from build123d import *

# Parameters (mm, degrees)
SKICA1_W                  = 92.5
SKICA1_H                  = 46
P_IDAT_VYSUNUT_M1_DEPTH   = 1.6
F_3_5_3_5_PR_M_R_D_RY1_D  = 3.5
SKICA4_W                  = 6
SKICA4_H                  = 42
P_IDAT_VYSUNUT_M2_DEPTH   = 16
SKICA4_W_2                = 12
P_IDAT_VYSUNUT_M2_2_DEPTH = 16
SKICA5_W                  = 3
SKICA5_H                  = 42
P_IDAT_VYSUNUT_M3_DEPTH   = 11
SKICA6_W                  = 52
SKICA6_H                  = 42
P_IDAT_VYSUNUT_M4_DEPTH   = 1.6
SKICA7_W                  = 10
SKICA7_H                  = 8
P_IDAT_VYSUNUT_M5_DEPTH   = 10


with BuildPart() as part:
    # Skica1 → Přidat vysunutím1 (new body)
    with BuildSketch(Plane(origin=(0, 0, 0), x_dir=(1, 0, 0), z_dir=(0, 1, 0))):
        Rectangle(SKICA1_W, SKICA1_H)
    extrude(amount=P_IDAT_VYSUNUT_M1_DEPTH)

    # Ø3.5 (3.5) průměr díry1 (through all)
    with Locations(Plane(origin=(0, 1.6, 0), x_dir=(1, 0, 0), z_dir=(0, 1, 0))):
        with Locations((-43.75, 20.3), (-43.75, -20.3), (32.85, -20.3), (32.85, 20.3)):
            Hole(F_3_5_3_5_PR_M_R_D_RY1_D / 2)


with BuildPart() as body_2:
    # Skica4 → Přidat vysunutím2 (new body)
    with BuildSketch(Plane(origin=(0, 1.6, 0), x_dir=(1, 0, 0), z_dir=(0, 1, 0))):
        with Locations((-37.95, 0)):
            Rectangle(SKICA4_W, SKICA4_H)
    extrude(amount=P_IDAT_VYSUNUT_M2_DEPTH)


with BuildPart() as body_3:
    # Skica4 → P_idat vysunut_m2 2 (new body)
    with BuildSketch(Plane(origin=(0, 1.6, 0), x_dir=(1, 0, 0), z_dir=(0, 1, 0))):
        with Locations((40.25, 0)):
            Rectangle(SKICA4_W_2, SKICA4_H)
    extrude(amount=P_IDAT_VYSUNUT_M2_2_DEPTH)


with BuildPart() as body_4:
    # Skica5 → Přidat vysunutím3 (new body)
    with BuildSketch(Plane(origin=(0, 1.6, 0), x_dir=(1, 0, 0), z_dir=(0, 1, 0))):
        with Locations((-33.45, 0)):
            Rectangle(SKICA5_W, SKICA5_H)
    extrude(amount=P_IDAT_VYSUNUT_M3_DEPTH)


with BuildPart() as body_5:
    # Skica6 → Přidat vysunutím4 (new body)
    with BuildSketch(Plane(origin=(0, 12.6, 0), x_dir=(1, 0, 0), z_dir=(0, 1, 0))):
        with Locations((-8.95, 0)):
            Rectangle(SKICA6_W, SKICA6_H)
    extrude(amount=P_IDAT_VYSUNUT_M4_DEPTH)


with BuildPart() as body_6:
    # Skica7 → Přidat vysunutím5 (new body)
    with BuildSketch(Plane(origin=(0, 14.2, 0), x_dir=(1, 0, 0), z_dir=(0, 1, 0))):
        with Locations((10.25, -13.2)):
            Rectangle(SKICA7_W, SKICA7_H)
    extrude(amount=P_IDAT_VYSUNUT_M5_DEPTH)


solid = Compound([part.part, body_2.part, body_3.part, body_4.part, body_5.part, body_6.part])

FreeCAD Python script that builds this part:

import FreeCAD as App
import Part
import Sketcher

V = App.Vector
Q = App.Units.Quantity

doc = App.newDocument("Part")
body = doc.addObject("PartDesign::Body", "Body")

# Sketch on XZ plane
sketch1 = body.newObject("Sketcher::SketchObject", "Sketch")
sketch1.AttachmentSupport = (doc.getObject("XZ_Plane"), [""])
sketch1.MapMode = "FlatFace"
sketch1.addGeometry([
    Part.LineSegment(V(-46.25, -23, 0), V(-46.25, 23, 0)),
    Part.LineSegment(V(-46.25, 23, 0), V(46.25, 23, 0)),
    Part.LineSegment(V(46.25, 23, 0), V(46.25, -23, 0)),
    Part.LineSegment(V(46.25, -23, 0), V(-46.25, -23, 0)),
], False)
sketch1.addConstraint([
    Sketcher.Constraint("Coincident", 0, 2, 1, 1),
    Sketcher.Constraint("Coincident", 1, 2, 2, 1),
    Sketcher.Constraint("Coincident", 2, 2, 3, 1),
    Sketcher.Constraint("Coincident", 3, 2, 0, 1),
    Sketcher.Constraint("Vertical", 0),
    Sketcher.Constraint("Horizontal", 1),
    Sketcher.Constraint("Vertical", 2),
    Sketcher.Constraint("Horizontal", 3),
    Sketcher.Constraint("Symmetric", 0, 2, 2, 2, -1, 1),
    Sketcher.Constraint("DistanceY", 0, 1, 0, 2, Q("46 mm")),
    Sketcher.Constraint("DistanceX", 1, 1, 1, 2, Q("92.5 mm")),
])
pad1 = body.newObject("PartDesign::Pad", "Pad")
pad1.Profile = sketch1
pad1.Length = 1.6
pad1.Reversed = True

# Sketch on XZ plane
sketch2 = body.newObject("Sketcher::SketchObject", "Sketch001")
sketch2.AttachmentSupport = (doc.getObject("XZ_Plane"), [""])
sketch2.MapMode = "FlatFace"
sketch2.AttachmentOffset = App.Placement(V(0, 0, -1.6), App.Rotation())
sketch2.addGeometry([
    Part.Circle(V(-43.75, -20.3, 0), V(0, 0, 1), 1.75),
    Part.Circle(V(-43.75, 20.3, 0), V(0, 0, 1), 1.75),
    Part.Circle(V(32.85, 20.3, 0), V(0, 0, 1), 1.75),
    Part.Circle(V(32.85, -20.3, 0), V(0, 0, 1), 1.75),
], False)
sketch2.addConstraint([
    Sketcher.Constraint("Equal", 0, 1),
    Sketcher.Constraint("Equal", 1, 2),
    Sketcher.Constraint("Equal", 2, 3),
    Sketcher.Constraint("Symmetric", 0, 3, 1, 3, -1),
    Sketcher.Constraint("Symmetric", 2, 3, 3, 3, -1),
    Sketcher.Constraint("Horizontal", 1, 3, 2, 3),
    Sketcher.Constraint("Diameter", 0, Q("3.5 mm")),
    Sketcher.Constraint("DistanceY", 0, 3, -1, 1, Q("20.3 mm")),
    Sketcher.Constraint("DistanceX", 1, 3, 2, 3, Q("76.6 mm")),
    Sketcher.Constraint("DistanceX", 0, 3, -1, 1, Q("43.75 mm")),
])
doc.recompute()
hole = body.newObject("PartDesign::Hole", "Hole")
hole.Profile = sketch2
hole.ThreadType = "None"
hole.Diameter = 3.5
hole.DepthType = "ThroughAll"
hole.Reversed = True
body2 = doc.addObject("PartDesign::Body", "Body001")

# Sketch on XZ plane
sketch3 = body2.newObject("Sketcher::SketchObject", "Sketch002")
sketch3.AttachmentSupport = (doc.getObject("XZ_Plane001"), [""])
sketch3.MapMode = "FlatFace"
sketch3.AttachmentOffset = App.Placement(V(0, 0, -1.6), App.Rotation())
sketch3.addGeometry([
    Part.LineSegment(V(-40.95, -21, 0), V(-40.95, 21, 0)),
    Part.LineSegment(V(-40.95, 21, 0), V(-34.95, 21, 0)),
    Part.LineSegment(V(-34.95, 21, 0), V(-34.95, -21, 0)),
    Part.LineSegment(V(-34.95, -21, 0), V(-40.95, -21, 0)),
], False)
sketch3.addConstraint([
    Sketcher.Constraint("Coincident", 0, 2, 1, 1),
    Sketcher.Constraint("Coincident", 1, 2, 2, 1),
    Sketcher.Constraint("Coincident", 2, 2, 3, 1),
    Sketcher.Constraint("Coincident", 3, 2, 0, 1),
    Sketcher.Constraint("Vertical", 0),
    Sketcher.Constraint("Horizontal", 1),
    Sketcher.Constraint("Vertical", 2),
    Sketcher.Constraint("Horizontal", 3),
    Sketcher.Constraint("DistanceX", 1, 1, 1, 2, Q("6 mm")),
    Sketcher.Constraint("DistanceY", 0, 1, 0, 2, Q("42 mm")),
    Sketcher.Constraint("DistanceY", -1, 1, 0, 2, Q("21 mm")),
    Sketcher.Constraint("DistanceX", 0, 2, -1, 1, Q("40.95 mm")),
])
pad2 = body2.newObject("PartDesign::Pad", "Pad001")
pad2.Profile = sketch3
pad2.Length = 16
pad2.Reversed = True
body3 = doc.addObject("PartDesign::Body", "Body002")

# Sketch on XZ plane
sketch4 = body3.newObject("Sketcher::SketchObject", "Sketch003")
sketch4.AttachmentSupport = (doc.getObject("XZ_Plane002"), [""])
sketch4.MapMode = "FlatFace"
sketch4.AttachmentOffset = App.Placement(V(0, 0, -1.6), App.Rotation())
sketch4.addGeometry([
    Part.LineSegment(V(34.25, -21, 0), V(34.25, 21, 0)),
    Part.LineSegment(V(34.25, 21, 0), V(46.25, 21, 0)),
    Part.LineSegment(V(46.25, 21, 0), V(46.25, -21, 0)),
    Part.LineSegment(V(46.25, -21, 0), V(34.25, -21, 0)),
], False)
sketch4.addConstraint([
    Sketcher.Constraint("Coincident", 0, 2, 1, 1),
    Sketcher.Constraint("Coincident", 1, 2, 2, 1),
    Sketcher.Constraint("Coincident", 2, 2, 3, 1),
    Sketcher.Constraint("Coincident", 3, 2, 0, 1),
    Sketcher.Constraint("Vertical", 0),
    Sketcher.Constraint("Horizontal", 1),
    Sketcher.Constraint("Vertical", 2),
    Sketcher.Constraint("Horizontal", 3),
    Sketcher.Constraint("DistanceX", 1, 1, 1, 2, Q("12 mm")),
    Sketcher.Constraint("DistanceY", 0, 1, 0, 2, Q("42 mm")),
    Sketcher.Constraint("DistanceY", -1, 1, 0, 2, Q("21 mm")),
    Sketcher.Constraint("DistanceX", -1, 1, 0, 2, Q("34.25 mm")),
])
pad3 = body3.newObject("PartDesign::Pad", "Pad002")
pad3.Profile = sketch4
pad3.Length = 16
pad3.Reversed = True
body4 = doc.addObject("PartDesign::Body", "Body003")

# Sketch on XZ plane
sketch5 = body4.newObject("Sketcher::SketchObject", "Sketch004")
sketch5.AttachmentSupport = (doc.getObject("XZ_Plane003"), [""])
sketch5.MapMode = "FlatFace"
sketch5.AttachmentOffset = App.Placement(V(0, 0, -1.6), App.Rotation())
sketch5.addGeometry([
    Part.LineSegment(V(-34.95, -21, 0), V(-34.95, 21, 0)),
    Part.LineSegment(V(-34.95, 21, 0), V(-31.95, 21, 0)),
    Part.LineSegment(V(-31.95, 21, 0), V(-31.95, -21, 0)),
    Part.LineSegment(V(-31.95, -21, 0), V(-34.95, -21, 0)),
], False)
sketch5.addConstraint([
    Sketcher.Constraint("Coincident", 0, 2, 1, 1),
    Sketcher.Constraint("Coincident", 1, 2, 2, 1),
    Sketcher.Constraint("Coincident", 2, 2, 3, 1),
    Sketcher.Constraint("Coincident", 3, 2, 0, 1),
    Sketcher.Constraint("Vertical", 0),
    Sketcher.Constraint("Horizontal", 1),
    Sketcher.Constraint("Vertical", 2),
    Sketcher.Constraint("Horizontal", 3),
    Sketcher.Constraint("DistanceX", 1, 1, 1, 2, Q("3 mm")),
    Sketcher.Constraint("DistanceY", 0, 1, 0, 2, Q("42 mm")),
    Sketcher.Constraint("DistanceY", -1, 1, 0, 2, Q("21 mm")),
    Sketcher.Constraint("DistanceX", 0, 2, -1, 1, Q("34.95 mm")),
])
pad4 = body4.newObject("PartDesign::Pad", "Pad003")
pad4.Profile = sketch5
pad4.Length = 11
pad4.Reversed = True
body5 = doc.addObject("PartDesign::Body", "Body004")

# Sketch on XZ plane
sketch6 = body5.newObject("Sketcher::SketchObject", "Sketch005")
sketch6.AttachmentSupport = (doc.getObject("XZ_Plane004"), [""])
sketch6.MapMode = "FlatFace"
sketch6.AttachmentOffset = App.Placement(V(0, 0, -12.6), App.Rotation())
sketch6.addGeometry([
    Part.LineSegment(V(-34.95, -21, 0), V(-34.95, 21, 0)),
    Part.LineSegment(V(-34.95, 21, 0), V(17.05, 21, 0)),
    Part.LineSegment(V(17.05, 21, 0), V(17.05, -21, 0)),
    Part.LineSegment(V(17.05, -21, 0), V(-34.95, -21, 0)),
], False)
sketch6.addConstraint([
    Sketcher.Constraint("Coincident", 0, 2, 1, 1),
    Sketcher.Constraint("Coincident", 1, 2, 2, 1),
    Sketcher.Constraint("Coincident", 2, 2, 3, 1),
    Sketcher.Constraint("Coincident", 3, 2, 0, 1),
    Sketcher.Constraint("Vertical", 0),
    Sketcher.Constraint("Horizontal", 1),
    Sketcher.Constraint("Vertical", 2),
    Sketcher.Constraint("Horizontal", 3),
    Sketcher.Constraint("DistanceX", 1, 1, 1, 2, Q("52 mm")),
    Sketcher.Constraint("DistanceY", 0, 1, 0, 2, Q("42 mm")),
    Sketcher.Constraint("DistanceY", -1, 1, 0, 2, Q("21 mm")),
    Sketcher.Constraint("DistanceX", 0, 2, -1, 1, Q("34.95 mm")),
])
pad5 = body5.newObject("PartDesign::Pad", "Pad004")
pad5.Profile = sketch6
pad5.Length = 1.6
pad5.Reversed = True
body6 = doc.addObject("PartDesign::Body", "Body005")

# Sketch on XZ plane
sketch7 = body6.newObject("Sketcher::SketchObject", "Sketch006")
sketch7.AttachmentSupport = (doc.getObject("XZ_Plane005"), [""])
sketch7.MapMode = "FlatFace"
sketch7.AttachmentOffset = App.Placement(V(0, 0, -14.2), App.Rotation())
sketch7.addGeometry([
    Part.LineSegment(V(5.25, 9.2, 0), V(5.25, 17.2, 0)),
    Part.LineSegment(V(5.25, 17.2, 0), V(15.25, 17.2, 0)),
    Part.LineSegment(V(15.25, 17.2, 0), V(15.25, 9.2, 0)),
    Part.LineSegment(V(15.25, 9.2, 0), V(5.25, 9.2, 0)),
], False)
sketch7.addConstraint([
    Sketcher.Constraint("Coincident", 0, 2, 1, 1),
    Sketcher.Constraint("Coincident", 1, 2, 2, 1),
    Sketcher.Constraint("Coincident", 2, 2, 3, 1),
    Sketcher.Constraint("Coincident", 3, 2, 0, 1),
    Sketcher.Constraint("Vertical", 0),
    Sketcher.Constraint("Horizontal", 1),
    Sketcher.Constraint("Vertical", 2),
    Sketcher.Constraint("Horizontal", 3),
    Sketcher.Constraint("DistanceX", 1, 1, 1, 2, Q("10 mm")),
    Sketcher.Constraint("DistanceY", 0, 1, 0, 2, Q("8 mm")),
    Sketcher.Constraint("DistanceY", -1, 1, 0, 2, Q("17.2 mm")),
    Sketcher.Constraint("DistanceX", -1, 1, 0, 2, Q("5.25 mm")),
])
pad6 = body6.newObject("PartDesign::Pad", "Pad005")
pad6.Profile = sketch7
pad6.Length = 10
pad6.Reversed = True

doc.recompute()
